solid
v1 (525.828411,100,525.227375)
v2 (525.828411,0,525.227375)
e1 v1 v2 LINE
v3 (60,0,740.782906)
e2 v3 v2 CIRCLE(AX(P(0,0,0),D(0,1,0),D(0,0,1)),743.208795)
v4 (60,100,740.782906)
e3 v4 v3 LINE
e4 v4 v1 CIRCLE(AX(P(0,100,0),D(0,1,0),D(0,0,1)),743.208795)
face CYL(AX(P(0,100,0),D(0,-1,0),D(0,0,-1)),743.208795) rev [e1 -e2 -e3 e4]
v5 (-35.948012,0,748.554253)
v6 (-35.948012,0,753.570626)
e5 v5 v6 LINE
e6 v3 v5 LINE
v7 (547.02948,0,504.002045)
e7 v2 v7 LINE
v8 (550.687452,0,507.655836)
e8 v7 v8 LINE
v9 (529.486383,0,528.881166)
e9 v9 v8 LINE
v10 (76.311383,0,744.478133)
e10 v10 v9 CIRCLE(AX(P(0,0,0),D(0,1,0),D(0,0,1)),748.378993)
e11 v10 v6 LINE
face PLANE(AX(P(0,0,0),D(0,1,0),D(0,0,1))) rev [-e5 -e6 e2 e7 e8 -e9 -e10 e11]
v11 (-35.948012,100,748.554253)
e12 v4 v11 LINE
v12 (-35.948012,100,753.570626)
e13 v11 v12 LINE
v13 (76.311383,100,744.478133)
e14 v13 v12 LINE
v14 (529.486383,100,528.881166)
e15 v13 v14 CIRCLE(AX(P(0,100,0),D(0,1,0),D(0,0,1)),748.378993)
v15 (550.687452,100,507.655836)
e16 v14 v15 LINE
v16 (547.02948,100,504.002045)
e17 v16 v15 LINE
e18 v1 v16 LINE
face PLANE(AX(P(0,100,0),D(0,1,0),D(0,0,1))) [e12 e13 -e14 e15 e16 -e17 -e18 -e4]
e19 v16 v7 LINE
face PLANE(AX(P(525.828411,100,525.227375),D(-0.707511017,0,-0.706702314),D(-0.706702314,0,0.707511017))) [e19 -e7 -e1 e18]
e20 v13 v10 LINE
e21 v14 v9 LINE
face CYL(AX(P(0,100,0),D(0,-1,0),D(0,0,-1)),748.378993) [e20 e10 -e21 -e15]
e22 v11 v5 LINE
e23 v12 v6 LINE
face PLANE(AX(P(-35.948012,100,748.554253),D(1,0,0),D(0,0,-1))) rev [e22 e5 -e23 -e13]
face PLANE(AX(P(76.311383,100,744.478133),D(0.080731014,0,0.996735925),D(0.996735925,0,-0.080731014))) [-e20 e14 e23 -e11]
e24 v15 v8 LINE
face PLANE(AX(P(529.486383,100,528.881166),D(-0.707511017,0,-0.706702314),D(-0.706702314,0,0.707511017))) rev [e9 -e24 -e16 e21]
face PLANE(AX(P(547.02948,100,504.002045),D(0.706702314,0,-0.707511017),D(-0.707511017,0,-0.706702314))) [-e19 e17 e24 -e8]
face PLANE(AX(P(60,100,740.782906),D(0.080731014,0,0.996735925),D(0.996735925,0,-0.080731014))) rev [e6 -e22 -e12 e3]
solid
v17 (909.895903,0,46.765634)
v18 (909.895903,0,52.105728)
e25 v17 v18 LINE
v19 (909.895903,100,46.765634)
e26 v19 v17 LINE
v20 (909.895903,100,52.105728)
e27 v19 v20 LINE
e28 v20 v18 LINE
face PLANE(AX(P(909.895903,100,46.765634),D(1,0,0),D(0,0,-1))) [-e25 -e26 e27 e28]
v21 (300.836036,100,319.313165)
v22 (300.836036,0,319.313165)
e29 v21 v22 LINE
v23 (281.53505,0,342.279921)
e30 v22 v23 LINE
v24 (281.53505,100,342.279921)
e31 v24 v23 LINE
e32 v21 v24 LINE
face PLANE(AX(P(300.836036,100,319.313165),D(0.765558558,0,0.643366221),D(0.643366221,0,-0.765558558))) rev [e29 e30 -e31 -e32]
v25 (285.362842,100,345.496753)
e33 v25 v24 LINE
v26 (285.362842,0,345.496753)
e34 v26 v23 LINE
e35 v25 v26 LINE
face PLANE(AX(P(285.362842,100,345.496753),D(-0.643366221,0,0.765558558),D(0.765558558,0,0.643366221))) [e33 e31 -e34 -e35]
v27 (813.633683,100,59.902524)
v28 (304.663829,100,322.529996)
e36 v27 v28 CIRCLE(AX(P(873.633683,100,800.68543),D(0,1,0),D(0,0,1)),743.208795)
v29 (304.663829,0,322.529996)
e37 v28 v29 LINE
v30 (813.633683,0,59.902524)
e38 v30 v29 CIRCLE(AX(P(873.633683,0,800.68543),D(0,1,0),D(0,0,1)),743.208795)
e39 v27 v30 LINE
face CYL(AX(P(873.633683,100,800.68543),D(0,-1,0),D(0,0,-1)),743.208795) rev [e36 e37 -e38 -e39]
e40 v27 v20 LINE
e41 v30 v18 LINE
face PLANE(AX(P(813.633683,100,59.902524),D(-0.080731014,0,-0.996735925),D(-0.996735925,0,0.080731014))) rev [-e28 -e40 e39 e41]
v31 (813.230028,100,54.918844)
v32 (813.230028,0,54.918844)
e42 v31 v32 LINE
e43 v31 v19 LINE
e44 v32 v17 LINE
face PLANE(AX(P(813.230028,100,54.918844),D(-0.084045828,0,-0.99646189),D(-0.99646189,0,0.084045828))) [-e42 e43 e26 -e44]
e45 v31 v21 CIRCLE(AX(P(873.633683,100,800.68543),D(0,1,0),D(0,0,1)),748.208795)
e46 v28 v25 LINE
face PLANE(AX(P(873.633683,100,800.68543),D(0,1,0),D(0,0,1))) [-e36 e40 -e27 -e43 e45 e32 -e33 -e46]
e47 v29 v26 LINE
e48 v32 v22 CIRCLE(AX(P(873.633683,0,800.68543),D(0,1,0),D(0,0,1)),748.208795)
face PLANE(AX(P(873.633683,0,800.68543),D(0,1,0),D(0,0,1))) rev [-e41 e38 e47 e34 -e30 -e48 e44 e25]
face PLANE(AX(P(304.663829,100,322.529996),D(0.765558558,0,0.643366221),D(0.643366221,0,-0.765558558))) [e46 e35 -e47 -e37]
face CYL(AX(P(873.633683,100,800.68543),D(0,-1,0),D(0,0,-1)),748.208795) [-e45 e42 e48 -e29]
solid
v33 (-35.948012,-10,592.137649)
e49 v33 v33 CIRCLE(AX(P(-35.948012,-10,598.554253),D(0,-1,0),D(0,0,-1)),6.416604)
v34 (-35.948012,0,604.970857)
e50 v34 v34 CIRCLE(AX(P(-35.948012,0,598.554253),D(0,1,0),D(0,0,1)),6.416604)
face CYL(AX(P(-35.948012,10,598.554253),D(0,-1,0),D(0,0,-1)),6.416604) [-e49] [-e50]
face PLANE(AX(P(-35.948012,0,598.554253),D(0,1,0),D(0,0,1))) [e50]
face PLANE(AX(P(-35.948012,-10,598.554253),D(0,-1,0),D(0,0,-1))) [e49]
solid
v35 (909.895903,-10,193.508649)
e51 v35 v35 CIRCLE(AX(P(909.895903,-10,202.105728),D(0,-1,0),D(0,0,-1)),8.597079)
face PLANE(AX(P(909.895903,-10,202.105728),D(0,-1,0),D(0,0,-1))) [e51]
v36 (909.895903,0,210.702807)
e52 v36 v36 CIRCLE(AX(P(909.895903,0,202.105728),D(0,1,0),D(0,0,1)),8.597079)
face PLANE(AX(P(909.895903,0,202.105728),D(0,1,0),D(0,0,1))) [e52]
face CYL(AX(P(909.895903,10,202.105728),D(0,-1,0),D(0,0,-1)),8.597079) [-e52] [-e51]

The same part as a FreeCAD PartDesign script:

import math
import FreeCAD as App
import Part
import Sketcher

V = App.Vector

doc = App.newDocument("Part")
body = doc.addObject("PartDesign::Body", "Body")

# Sketch on XZ plane
sketch1 = body.newObject("Sketcher::SketchObject", "Sketch")
sketch1.AttachmentSupport = (doc.getObject("XZ_Plane"), [""])
sketch1.MapMode = "FlatFace"
sketch1.addGeometry([
    Part.LineSegment(V(300.8, 319.3, 0), V(281.5, 342.3, 0)),  # 0
    Part.LineSegment(V(281.5, 342.3, 0), V(285.4, 345.5, 0)),  # 1
    Part.LineSegment(V(285.4, 345.5, 0), V(304.7, 322.5, 0)),  # 2
    Part.ArcOfCircle(Part.Circle(V(873.6, 800.7, 0), V(0, 0, 1), 743.2), math.radians(-140), math.radians(-95)),  # 3
    Part.LineSegment(V(813.6, 59.9, 0), V(909.9, 52.1, 0)),  # 4
    Part.LineSegment(V(909.9, 52.1, 0), V(909.9, 46.8, 0)),  # 5
    Part.LineSegment(V(909.9, 46.8, 0), V(813.2, 54.9, 0)),  # 6
    Part.ArcOfCircle(Part.Circle(V(873.6, 800.7, 0), V(0, 0, 1), 748.2), math.radians(-140), math.radians(-95)),  # 7
], False)
sketch1.addConstraint([
    Sketcher.Constraint("Coincident", 0, 2, 1, 1),
    Sketcher.Constraint("Coincident", 1, 2, 2, 1),
    Sketcher.Constraint("Tangent", 2, 2, 3, 1),
    Sketcher.Constraint("Tangent", 3, 2, 4, 1),
    Sketcher.Constraint("Coincident", 4, 2, 5, 1),
    Sketcher.Constraint("Coincident", 5, 2, 6, 1),
    Sketcher.Constraint("Coincident", 6, 2, 7, 2),
    Sketcher.Constraint("Tangent", 7, 1, 0, 1),
    Sketcher.Constraint("Vertical", 5),
    Sketcher.Constraint("Coincident", 7, 3, 3, 3),
    Sketcher.Constraint("Perpendicular", 0, 1),
    Sketcher.Constraint("Perpendicular", 1, 2),
    Sketcher.Constraint("Distance", 0, 30.0),
    Sketcher.Constraint("Distance", 1, 5.0),
    Sketcher.Constraint("Radius", 3, 743.208795),
    Sketcher.Constraint("DistanceY", 4, 2, 3, 3, 748.579702),
    Sketcher.Constraint("DistanceX", 2, 2, 6, 2, 508.566199),
    Sketcher.Constraint("DistanceY", 5, 2, 5, 1, 5.340094),
    Sketcher.Constraint("DistanceY", -1, 1, 3, 3, 800.68543),
    Sketcher.Constraint("DistanceX", -1, 1, 0, 2, 281.53505),
    Sketcher.Constraint("DistanceY", -1, 1, 0, 2, 342.279921),
    Sketcher.Constraint("DistanceX", 1, 2, 4, 2, 624.53306),
])
pad1 = body.newObject("PartDesign::Pad", "Pad")
pad1.Profile = sketch1
pad1.Length = 100
pad1.Reversed = True
body2 = doc.addObject("PartDesign::Body", "Body001")

# Sketch on XZ plane
sketch2 = body2.newObject("Sketcher::SketchObject", "Sketch001")
sketch2.AttachmentSupport = (doc.getObject("XZ_Plane001"), [""])
sketch2.MapMode = "FlatFace"
sketch2.addGeometry([
    Part.LineSegment(V(529.486383, 528.881166, 0), V(550.687452, 507.655836, 0)),  # 0
    Part.LineSegment(V(550.687452, 507.655836, 0), V(547.02948, 504.002045, 0)),  # 1
    Part.LineSegment(V(547.02948, 504.002045, 0), V(525.828411, 525.227375, 0)),  # 2
    Part.ArcOfCircle(Part.Circle(V(0, 0, 0), V(0, 0, 1), 743.208796), math.radians(44.967236), math.radians(85.369414)),  # 3
    Part.LineSegment(V(60, 740.782906, 0), V(-35.948012, 748.554253, 0)),  # 4
    Part.LineSegment(V(-35.948012, 748.554253, 0), V(-35.948012, 753.570626, 0)),  # 5
    Part.LineSegment(V(-35.948012, 753.570626, 0), V(76.311383, 744.478133, 0)),  # 6
    Part.ArcOfCircle(Part.Circle(V(0, 0, 0), V(0, 0, 1), 748.378993), math.radians(44.967236), math.radians(84.14744)),  # 7
], False)
sketch2.addConstraint([
    Sketcher.Constraint("Coincident", 0, 2, 1, 1),
    Sketcher.Constraint("Coincident", 1, 2, 2, 1),
    Sketcher.Constraint("Tangent", 2, 2, 3, 1),
    Sketcher.Constraint("Tangent", 3, 2, 4, 1),
    Sketcher.Constraint("Coincident", 4, 2, 5, 1),
    Sketcher.Constraint("Coincident", 5, 2, 6, 1),
    Sketcher.Constraint("Coincident", 6, 2, 7, 2),
    Sketcher.Constraint("Tangent", 7, 1, 0, 1),
    Sketcher.Constraint("Vertical", 5),
    Sketcher.Constraint("Coincident", 3, 3, -1, 1),
    Sketcher.Constraint("Coincident", 7, 3, -1, 1),
    Sketcher.Constraint("Perpendicular", 0, 1),
    Sketcher.Constraint("Perpendicular", 1, 2),
    Sketcher.Constraint("Parallel", 4, 6),
    Sketcher.Constraint("Distance", 0, 30.0),
    Sketcher.Constraint("Radius", 3, 743.208796),
    Sketcher.Constraint("Radius", 7, 748.378993),
    Sketcher.Constraint("Distance", 4, 96.26222),
    Sketcher.Constraint("Distance", 6, 112.627018),
    Sketcher.Constraint("DistanceX", -1, 1, 1, 2, 547.02948),
    Sketcher.Constraint("DistanceY", 2, 2, 5, 2, 228.343251),
])
pad2 = body2.newObject("PartDesign::Pad", "Pad001")
pad2.Profile = sketch2
pad2.Length = 100
pad2.Reversed = True
body3 = doc.addObject("PartDesign::Body", "Body002")

# Sketch on XZ plane
sketch3 = body3.newObject("Sketcher::SketchObject", "Sketch002")
sketch3.AttachmentSupport = (doc.getObject("XZ_Plane002"), [""])
sketch3.MapMode = "FlatFace"
sketch3.addGeometry(Part.Circle(V(910, 202, 0), V(0, 0, 1), 9), False)
sketch3.addConstraint([
    Sketcher.Constraint("Diameter", 0, 17.194158),
    Sketcher.Constraint("DistanceX", -1, 1, 0, 3, 909.895903),
    Sketcher.Constraint("DistanceY", -1, 1, 0, 3, 202.105728),
])
pad3 = body3.newObject("PartDesign::Pad", "Pad002")
pad3.Profile = sketch3
pad3.Length = 10
pad3.Reversed = True

# Sketch on XZ plane
sketch4 = body3.newObject("Sketcher::SketchObject", "Sketch003")
sketch4.AttachmentSupport = (doc.getObject("XZ_Plane002"), [""])
sketch4.MapMode = "FlatFace"
sketch4.addGeometry(Part.Circle(V(910, 202, 0), V(0, 0, 1), 9), False)
sketch4.addConstraint([
    Sketcher.Constraint("Diameter", 0, 17.194158),
    Sketcher.Constraint("DistanceX", -1, 1, 0, 3, 909.895903),
    Sketcher.Constraint("DistanceY", -1, 1, 0, 3, 202.105728),
])
pad4 = body3.newObject("PartDesign::Pad", "Pad003")
pad4.Profile = sketch4
pad4.Length = 10

# Sketch on XZ plane
sketch5 = body3.newObject("Sketcher::SketchObject", "Sketch004")
sketch5.AttachmentSupport = (doc.getObject("XZ_Plane002"), [""])
sketch5.MapMode = "FlatFace"
sketch5.AttachmentOffset = App.Placement(V(0, 0, -10), App.Rotation())
sketch5.addGeometry(Part.Circle(V(910, 202, 0), V(0, 0, 1), 9), False)
sketch5.addConstraint([
    Sketcher.Constraint("Diameter", 0, 17.194158),
    Sketcher.Constraint("DistanceX", -1, 1, 0, 3, 909.895903),
    Sketcher.Constraint("DistanceY", -1, 1, 0, 3, 202.105728),
])
pocket1 = body3.newObject("PartDesign::Pocket", "Pocket")
pocket1.Profile = sketch5
pocket1.Length = 10
pocket1.Reversed = True
body4 = doc.addObject("PartDesign::Body", "Body003")

# Sketch on XZ plane
sketch6 = body4.newObject("Sketcher::SketchObject", "Sketch005")
sketch6.AttachmentSupport = (doc.getObject("XZ_Plane003"), [""])
sketch6.MapMode = "FlatFace"
sketch6.addGeometry(Part.Circle(V(-36, 599, 0), V(0, 0, 1), 6), False)
sketch6.addConstraint([
    Sketcher.Constraint("Diameter", 0, 12.833208),
    Sketcher.Constraint("DistanceX", 0, 3, -1, 1, 35.948012),
    Sketcher.Constraint("DistanceY", -1, 1, 0, 3, 598.554253),
])
pad5 = body4.newObject("PartDesign::Pad", "Pad004")
pad5.Profile = sketch6
pad5.Length = 10
pad5.Reversed = True

# Sketch on XZ plane
sketch7 = body4.newObject("Sketcher::SketchObject", "Sketch006")
sketch7.AttachmentSupport = (doc.getObject("XZ_Plane003"), [""])
sketch7.MapMode = "FlatFace"
sketch7.addGeometry(Part.Circle(V(-36, 599, 0), V(0, 0, 1), 6), False)
sketch7.addConstraint([
    Sketcher.Constraint("Diameter", 0, 12.833208),
    Sketcher.Constraint("DistanceX", 0, 3, -1, 1, 35.948012),
    Sketcher.Constraint("DistanceY", -1, 1, 0, 3, 598.554253),
])
pad6 = body4.newObject("PartDesign::Pad", "Pad005")
pad6.Profile = sketch7
pad6.Length = 10

# Sketch on XZ plane
sketch8 = body4.newObject("Sketcher::SketchObject", "Sketch007")
sketch8.AttachmentSupport = (doc.getObject("XZ_Plane003"), [""])
sketch8.MapMode = "FlatFace"
sketch8.AttachmentOffset = App.Placement(V(0, 0, -10), App.Rotation())
sketch8.addGeometry(Part.Circle(V(-36, 599, 0), V(0, 0, 1), 6), False)
sketch8.addConstraint([
    Sketcher.Constraint("Diameter", 0, 12.833208),
    Sketcher.Constraint("DistanceX", 0, 3, -1, 1, 35.948012),
    Sketcher.Constraint("DistanceY", -1, 1, 0, 3, 598.554253),
])
pocket2 = body4.newObject("PartDesign::Pocket", "Pocket001")
pocket2.Profile = sketch8
pocket2.Length = 10
pocket2.Reversed = True

doc.recompute()
